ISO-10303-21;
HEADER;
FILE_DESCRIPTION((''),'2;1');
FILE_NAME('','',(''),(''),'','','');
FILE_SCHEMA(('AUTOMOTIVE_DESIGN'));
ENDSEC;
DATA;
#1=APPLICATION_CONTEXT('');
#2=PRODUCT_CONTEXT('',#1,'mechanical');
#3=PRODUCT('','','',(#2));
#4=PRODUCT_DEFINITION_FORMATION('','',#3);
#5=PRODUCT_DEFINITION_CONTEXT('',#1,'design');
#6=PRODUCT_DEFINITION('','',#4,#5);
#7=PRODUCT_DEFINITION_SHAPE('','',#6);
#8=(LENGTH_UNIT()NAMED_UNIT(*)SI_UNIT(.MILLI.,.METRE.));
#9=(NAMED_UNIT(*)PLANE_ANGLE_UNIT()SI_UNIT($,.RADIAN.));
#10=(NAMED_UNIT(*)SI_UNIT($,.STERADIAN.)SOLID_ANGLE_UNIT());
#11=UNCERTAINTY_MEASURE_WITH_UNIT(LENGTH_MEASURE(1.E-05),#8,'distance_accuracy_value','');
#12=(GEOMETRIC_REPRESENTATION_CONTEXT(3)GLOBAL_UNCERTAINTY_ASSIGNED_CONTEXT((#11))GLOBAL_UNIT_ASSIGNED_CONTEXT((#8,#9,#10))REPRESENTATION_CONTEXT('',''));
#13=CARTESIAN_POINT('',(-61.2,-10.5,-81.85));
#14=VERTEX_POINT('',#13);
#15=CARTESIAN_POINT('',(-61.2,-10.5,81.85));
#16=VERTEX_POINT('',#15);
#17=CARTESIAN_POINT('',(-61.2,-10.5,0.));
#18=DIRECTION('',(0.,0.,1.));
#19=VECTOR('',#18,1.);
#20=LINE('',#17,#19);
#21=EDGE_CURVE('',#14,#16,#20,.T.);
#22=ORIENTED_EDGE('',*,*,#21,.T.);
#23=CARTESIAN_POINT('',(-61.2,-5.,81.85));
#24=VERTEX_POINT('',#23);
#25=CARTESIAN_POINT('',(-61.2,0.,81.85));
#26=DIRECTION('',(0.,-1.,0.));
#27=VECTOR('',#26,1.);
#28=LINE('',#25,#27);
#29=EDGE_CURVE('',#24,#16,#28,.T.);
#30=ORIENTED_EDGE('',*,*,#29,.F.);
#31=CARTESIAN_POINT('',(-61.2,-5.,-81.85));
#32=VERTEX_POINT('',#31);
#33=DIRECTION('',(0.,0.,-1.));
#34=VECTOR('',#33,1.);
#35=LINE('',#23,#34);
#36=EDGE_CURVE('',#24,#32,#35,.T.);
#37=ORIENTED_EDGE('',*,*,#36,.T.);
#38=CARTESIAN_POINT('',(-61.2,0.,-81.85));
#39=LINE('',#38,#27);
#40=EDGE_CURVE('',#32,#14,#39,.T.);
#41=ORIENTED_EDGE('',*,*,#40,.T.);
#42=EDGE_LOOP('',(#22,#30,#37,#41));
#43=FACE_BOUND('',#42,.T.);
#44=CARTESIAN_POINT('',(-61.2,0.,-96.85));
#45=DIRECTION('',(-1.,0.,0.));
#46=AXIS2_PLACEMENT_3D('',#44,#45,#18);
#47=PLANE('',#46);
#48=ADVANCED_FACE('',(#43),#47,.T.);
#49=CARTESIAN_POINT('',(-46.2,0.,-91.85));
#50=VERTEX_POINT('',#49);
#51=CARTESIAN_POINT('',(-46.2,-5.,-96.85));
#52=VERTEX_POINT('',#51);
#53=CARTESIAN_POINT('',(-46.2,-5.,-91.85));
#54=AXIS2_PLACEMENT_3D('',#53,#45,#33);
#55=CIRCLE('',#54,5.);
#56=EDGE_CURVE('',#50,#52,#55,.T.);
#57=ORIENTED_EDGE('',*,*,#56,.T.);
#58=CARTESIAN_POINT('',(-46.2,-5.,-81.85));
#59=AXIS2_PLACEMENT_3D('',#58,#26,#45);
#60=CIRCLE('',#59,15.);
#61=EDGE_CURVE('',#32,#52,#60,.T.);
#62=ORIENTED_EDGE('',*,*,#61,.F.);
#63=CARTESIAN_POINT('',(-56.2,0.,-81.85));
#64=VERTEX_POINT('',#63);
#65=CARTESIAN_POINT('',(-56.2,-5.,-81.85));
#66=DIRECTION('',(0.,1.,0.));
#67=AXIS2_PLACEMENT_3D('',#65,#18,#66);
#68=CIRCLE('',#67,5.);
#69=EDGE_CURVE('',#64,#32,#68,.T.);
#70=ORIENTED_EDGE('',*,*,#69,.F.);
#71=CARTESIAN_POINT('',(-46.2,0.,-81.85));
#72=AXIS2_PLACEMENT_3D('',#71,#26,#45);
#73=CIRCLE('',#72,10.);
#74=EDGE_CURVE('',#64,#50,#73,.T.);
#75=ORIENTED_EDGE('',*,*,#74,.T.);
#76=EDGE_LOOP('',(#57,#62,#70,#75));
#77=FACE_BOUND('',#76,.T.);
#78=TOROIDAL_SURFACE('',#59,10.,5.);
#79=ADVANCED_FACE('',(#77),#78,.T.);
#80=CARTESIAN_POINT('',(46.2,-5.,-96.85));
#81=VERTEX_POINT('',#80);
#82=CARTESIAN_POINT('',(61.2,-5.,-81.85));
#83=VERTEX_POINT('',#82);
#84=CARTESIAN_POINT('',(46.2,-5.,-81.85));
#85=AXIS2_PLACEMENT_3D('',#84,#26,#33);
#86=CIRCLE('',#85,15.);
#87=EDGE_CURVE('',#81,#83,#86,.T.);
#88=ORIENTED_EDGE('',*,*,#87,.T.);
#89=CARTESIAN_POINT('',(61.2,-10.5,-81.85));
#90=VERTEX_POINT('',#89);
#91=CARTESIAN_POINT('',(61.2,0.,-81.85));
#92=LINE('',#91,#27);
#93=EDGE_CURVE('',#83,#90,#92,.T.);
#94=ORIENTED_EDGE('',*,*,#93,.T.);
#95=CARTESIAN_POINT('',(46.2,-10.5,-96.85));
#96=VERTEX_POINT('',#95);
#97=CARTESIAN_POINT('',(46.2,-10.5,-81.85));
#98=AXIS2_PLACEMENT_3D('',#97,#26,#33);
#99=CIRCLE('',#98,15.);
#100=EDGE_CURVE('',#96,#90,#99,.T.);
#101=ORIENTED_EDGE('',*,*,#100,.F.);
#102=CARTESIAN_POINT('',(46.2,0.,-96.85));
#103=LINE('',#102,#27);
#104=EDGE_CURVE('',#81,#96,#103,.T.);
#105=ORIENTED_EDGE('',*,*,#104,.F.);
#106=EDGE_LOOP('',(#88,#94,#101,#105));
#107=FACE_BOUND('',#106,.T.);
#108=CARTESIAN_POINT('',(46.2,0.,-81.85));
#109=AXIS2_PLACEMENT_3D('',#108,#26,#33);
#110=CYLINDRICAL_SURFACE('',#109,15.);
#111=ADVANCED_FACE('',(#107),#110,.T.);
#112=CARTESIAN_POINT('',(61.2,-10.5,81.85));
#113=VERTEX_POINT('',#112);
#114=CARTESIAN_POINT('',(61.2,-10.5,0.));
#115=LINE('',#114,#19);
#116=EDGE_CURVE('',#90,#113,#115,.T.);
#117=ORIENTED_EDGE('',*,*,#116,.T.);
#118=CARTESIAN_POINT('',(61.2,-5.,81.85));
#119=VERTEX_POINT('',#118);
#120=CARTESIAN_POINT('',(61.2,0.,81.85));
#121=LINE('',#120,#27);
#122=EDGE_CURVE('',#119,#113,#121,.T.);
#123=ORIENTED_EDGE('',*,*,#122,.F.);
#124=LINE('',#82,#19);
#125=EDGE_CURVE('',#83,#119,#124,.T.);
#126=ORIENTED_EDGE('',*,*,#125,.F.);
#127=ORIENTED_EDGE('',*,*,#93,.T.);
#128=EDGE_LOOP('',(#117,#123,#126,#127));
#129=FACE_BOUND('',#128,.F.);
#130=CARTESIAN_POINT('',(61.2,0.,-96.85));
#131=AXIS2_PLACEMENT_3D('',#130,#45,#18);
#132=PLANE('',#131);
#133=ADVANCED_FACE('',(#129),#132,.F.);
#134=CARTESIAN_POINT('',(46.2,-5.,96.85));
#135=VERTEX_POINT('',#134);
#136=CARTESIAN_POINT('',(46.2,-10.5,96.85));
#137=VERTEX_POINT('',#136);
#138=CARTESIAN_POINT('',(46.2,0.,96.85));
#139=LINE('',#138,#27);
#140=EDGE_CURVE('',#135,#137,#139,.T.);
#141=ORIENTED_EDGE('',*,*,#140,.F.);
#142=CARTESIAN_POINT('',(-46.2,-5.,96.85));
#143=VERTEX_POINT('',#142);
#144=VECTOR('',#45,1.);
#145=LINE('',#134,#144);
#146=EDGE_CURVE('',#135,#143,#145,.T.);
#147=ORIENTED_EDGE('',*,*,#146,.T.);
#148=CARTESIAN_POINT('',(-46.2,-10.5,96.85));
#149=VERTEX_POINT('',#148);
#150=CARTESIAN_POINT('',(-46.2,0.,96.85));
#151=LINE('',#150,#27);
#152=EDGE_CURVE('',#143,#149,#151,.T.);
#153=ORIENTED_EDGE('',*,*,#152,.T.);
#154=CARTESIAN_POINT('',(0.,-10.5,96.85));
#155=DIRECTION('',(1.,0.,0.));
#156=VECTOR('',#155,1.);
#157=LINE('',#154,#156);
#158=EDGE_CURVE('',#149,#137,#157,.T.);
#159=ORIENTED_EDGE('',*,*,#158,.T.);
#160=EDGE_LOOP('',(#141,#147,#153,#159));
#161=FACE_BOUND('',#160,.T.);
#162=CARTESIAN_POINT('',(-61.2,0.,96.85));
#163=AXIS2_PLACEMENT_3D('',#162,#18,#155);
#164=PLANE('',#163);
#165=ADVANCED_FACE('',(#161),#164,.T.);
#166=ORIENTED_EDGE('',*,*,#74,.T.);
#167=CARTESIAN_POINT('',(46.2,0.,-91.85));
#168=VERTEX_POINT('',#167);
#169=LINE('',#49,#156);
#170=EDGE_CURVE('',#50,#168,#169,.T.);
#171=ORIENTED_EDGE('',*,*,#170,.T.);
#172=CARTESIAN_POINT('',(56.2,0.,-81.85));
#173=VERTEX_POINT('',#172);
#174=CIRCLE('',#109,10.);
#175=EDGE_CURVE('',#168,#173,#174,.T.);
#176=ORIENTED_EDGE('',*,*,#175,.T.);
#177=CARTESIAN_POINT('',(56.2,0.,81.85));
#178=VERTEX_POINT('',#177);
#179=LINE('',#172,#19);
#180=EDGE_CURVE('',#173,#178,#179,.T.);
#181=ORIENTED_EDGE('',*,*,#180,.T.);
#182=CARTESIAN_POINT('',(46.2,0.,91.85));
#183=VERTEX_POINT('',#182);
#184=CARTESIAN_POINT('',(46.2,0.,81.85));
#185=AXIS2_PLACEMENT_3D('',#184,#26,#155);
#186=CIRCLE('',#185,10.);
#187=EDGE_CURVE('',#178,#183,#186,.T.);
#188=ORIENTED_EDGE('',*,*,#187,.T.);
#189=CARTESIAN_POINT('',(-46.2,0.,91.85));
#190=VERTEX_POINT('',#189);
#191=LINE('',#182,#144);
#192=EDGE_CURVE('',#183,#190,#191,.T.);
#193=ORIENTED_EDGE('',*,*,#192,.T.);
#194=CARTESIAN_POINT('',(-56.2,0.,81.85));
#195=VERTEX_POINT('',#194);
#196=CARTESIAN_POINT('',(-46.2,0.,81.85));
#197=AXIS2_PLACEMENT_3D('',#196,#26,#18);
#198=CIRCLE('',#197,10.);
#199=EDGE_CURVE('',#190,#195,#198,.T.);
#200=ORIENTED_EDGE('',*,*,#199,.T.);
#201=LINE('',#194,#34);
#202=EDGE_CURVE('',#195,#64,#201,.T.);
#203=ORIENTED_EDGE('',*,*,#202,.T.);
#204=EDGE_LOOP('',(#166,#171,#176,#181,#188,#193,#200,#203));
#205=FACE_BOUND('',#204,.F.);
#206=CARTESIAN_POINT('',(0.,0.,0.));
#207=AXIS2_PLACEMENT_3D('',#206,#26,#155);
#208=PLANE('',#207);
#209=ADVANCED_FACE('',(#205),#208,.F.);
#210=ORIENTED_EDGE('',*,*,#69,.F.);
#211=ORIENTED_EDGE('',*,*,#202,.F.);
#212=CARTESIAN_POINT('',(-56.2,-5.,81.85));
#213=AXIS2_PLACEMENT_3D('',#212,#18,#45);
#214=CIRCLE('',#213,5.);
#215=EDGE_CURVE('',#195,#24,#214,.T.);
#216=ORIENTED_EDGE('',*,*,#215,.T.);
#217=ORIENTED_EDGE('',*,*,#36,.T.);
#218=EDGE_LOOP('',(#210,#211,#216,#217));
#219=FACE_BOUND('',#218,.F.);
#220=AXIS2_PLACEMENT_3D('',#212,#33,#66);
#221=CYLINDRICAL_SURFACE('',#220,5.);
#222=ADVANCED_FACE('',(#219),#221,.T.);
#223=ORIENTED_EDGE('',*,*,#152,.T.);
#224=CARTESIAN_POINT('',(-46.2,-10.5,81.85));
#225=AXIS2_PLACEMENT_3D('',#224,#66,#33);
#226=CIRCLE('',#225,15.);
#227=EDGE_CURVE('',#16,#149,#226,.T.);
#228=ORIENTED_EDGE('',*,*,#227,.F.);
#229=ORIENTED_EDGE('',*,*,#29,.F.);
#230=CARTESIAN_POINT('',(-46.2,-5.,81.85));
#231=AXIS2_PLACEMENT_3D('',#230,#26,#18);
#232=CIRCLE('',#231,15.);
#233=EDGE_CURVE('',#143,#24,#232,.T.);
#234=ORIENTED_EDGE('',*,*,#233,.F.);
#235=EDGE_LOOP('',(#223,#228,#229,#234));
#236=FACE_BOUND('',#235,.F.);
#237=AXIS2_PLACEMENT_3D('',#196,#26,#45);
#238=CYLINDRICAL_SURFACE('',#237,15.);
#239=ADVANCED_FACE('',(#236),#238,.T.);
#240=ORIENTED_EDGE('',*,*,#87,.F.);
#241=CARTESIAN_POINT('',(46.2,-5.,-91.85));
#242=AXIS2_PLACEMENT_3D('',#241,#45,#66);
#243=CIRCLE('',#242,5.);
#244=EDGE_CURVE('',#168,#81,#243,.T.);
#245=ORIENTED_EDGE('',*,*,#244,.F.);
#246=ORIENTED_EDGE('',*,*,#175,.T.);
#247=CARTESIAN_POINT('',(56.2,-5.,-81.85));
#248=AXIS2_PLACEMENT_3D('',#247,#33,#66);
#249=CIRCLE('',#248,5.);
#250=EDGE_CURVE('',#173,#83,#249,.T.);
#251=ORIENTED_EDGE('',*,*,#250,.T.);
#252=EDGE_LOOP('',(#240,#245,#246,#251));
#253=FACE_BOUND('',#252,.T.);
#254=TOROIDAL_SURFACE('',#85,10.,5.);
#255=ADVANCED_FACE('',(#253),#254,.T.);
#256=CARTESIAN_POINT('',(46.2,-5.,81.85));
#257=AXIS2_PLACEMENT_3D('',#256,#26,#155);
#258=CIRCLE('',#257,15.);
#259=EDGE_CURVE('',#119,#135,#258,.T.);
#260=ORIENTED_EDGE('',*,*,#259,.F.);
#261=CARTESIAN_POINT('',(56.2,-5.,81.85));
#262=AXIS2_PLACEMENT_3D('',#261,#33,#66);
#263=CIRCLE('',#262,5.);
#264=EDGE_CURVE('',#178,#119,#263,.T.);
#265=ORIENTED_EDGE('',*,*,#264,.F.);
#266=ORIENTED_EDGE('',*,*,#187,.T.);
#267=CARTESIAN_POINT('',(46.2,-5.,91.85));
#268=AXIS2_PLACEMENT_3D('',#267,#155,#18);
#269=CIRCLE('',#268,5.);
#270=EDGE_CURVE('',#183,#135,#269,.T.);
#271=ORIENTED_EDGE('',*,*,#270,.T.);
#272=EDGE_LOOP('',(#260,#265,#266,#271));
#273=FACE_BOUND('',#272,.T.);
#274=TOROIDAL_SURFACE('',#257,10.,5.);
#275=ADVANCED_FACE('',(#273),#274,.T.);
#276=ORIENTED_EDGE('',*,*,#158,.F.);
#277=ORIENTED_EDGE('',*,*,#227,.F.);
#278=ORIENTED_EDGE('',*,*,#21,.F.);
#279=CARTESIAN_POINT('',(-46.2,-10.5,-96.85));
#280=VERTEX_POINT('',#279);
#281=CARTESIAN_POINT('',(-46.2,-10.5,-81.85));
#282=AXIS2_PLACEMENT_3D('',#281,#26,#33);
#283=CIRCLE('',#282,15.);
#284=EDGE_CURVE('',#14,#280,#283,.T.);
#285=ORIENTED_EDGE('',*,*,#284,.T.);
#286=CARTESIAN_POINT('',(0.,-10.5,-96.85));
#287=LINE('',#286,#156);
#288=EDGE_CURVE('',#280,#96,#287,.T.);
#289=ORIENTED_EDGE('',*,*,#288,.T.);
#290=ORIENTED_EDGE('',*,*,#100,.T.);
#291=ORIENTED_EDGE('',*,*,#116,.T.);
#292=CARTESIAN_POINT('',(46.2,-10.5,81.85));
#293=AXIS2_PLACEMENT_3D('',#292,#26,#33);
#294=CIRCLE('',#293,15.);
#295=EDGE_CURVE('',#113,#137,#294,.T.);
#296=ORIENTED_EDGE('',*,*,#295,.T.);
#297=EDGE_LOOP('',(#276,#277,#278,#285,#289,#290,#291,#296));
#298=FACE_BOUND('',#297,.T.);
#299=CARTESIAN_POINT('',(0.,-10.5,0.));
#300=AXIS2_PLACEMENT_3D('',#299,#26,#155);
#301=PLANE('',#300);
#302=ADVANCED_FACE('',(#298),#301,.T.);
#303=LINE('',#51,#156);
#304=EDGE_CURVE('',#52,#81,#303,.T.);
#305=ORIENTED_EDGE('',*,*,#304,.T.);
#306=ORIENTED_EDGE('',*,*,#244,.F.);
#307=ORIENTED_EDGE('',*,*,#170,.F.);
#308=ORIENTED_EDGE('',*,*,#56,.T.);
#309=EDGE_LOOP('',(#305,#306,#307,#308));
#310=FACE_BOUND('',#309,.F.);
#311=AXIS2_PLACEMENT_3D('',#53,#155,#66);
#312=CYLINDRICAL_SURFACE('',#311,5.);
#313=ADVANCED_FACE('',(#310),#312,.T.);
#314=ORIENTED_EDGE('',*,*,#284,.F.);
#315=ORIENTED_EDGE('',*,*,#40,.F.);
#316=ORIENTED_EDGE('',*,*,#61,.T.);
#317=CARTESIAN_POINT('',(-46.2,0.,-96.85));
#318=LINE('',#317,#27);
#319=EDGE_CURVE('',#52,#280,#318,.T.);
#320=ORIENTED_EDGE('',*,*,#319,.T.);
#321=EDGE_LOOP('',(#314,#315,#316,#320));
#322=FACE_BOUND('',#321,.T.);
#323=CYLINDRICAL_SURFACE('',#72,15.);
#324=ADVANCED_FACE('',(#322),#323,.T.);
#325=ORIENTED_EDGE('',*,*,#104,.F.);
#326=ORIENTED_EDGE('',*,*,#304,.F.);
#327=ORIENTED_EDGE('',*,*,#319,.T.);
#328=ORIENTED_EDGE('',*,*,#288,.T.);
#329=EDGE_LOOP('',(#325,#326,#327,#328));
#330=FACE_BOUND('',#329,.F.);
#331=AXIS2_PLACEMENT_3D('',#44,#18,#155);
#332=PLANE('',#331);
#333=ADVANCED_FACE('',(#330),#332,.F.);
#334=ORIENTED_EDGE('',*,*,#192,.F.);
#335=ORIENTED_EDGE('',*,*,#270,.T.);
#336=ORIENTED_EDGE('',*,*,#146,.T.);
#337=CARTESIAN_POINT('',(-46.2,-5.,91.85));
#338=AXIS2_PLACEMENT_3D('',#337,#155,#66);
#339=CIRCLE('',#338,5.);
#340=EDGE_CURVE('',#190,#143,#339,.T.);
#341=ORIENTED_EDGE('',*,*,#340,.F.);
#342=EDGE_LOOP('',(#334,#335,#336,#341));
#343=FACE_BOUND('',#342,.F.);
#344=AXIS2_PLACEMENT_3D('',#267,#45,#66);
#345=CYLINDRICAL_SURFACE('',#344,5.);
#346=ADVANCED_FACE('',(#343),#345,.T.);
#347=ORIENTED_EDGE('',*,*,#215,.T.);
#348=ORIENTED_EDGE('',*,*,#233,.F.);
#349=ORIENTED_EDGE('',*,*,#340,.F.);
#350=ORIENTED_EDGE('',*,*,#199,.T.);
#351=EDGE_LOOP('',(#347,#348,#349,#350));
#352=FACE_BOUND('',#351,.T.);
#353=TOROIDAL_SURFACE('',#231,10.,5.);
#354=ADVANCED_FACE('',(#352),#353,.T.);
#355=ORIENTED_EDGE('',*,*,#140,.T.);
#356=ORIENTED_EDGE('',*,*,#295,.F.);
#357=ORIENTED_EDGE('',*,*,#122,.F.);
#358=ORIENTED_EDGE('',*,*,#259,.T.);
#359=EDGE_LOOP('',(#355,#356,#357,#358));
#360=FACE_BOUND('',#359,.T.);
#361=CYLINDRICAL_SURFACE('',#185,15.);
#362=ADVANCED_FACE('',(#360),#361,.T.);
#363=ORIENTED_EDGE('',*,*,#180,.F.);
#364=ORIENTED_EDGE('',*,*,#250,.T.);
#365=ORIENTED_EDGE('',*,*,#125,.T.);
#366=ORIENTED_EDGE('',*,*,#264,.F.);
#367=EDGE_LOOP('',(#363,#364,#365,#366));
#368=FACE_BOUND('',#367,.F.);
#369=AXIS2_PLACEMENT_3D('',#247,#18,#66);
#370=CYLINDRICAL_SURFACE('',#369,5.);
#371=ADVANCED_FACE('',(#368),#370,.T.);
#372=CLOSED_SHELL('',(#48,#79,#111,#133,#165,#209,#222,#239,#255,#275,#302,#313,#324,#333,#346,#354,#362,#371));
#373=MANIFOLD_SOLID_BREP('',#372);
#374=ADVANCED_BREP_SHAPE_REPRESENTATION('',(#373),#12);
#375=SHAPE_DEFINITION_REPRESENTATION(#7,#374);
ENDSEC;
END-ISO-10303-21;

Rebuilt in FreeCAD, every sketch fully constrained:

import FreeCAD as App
import Part
import Sketcher
Q = App.Units.Quantity


def edges_at(feature, points):
    """Names of the edges that pass closest to the given points."""
    edges = feature.Shape.Edges
    near = lambda p: min(range(len(edges)), key=lambda i: edges[i].distToShape(Part.Vertex(*p))[0])
    return sorted({f"Edge{near(p) + 1}" for p in points})

doc = App.newDocument("Part")
params = doc.addObject("Spreadsheet::Sheet", "Params")
for row, (alias, value) in enumerate([
    ("sketch1_width", "122.4 mm"),
    ("sketch1_height", "193.7 mm"),
    ("pad1_length", "10.5 mm"),
    ("fillet_radius", "15 mm"),
    ("fillet2_radius", "5 mm"),
], start=1):
    params.set(f"A{row}", alias)
    params.set(f"B{row}", "=" + value)
    params.setAlias(f"B{row}", alias)

body = doc.addObject("PartDesign::Body", "Body")

# Sketch on XZ plane
sketch1 = doc.addObject("Sketcher::SketchObject", "Sketch")
body.addObject(sketch1)
sketch1.AttachmentSupport = (doc.XZ_Plane, [""])
sketch1.MapMode = "FlatFace"
sketch1.addGeometry([
    Part.LineSegment(App.Vector(-61, 97, 0), App.Vector(-61, -97, 0)),
    Part.LineSegment(App.Vector(-61, -97, 0), App.Vector(61, -97, 0)),
    Part.LineSegment(App.Vector(61, -97, 0), App.Vector(61, 97, 0)),
    Part.LineSegment(App.Vector(61, 97, 0), App.Vector(-61, 97, 0)),
], False)
sketch1.addConstraint([
    Sketcher.Constraint("Coincident", 0, 2, 1, 1),
    Sketcher.Constraint("Coincident", 1, 2, 2, 1),
    Sketcher.Constraint("Coincident", 2, 2, 3, 1),
    Sketcher.Constraint("Coincident", 3, 2, 0, 1),
    Sketcher.Constraint("Vertical", 0),
    Sketcher.Constraint("Horizontal", 1),
    Sketcher.Constraint("Vertical", 2),
    Sketcher.Constraint("Horizontal", 3),
    Sketcher.Constraint("Symmetric", 0, 2, 2, 2, -1, 1),
    Sketcher.Constraint("DistanceX", 1, 1, 1, 2, Q("122.4 mm")),
    Sketcher.Constraint("DistanceY", 0, 2, 0, 1, Q("193.7 mm")),
])
sketch1.setExpression("Constraints[9]", "Params.sketch1_width")
sketch1.setExpression("Constraints[10]", "Params.sketch1_height")
pad1 = doc.addObject("PartDesign::Pad", "Pad")
body.addObject(pad1)
pad1.Profile = sketch1
pad1.setExpression("Length", "Params.pad1_length")
doc.recompute()

fillet = doc.addObject("PartDesign::Fillet", "Fillet")
body.addObject(fillet)
fillet.Base = (pad1, edges_at(pad1, [
    (61.2, -5.25, 96.85),
    (61.2, -5.25, -96.85),
    (-61.2, -5.25, 96.85),
    (-61.2, -5.25, -96.85),
]))
fillet.setExpression("Radius", "Params.fillet_radius")
doc.recompute()

fillet2 = doc.addObject("PartDesign::Fillet", "Fillet001")
body.addObject(fillet2)
fillet2.Base = (fillet, edges_at(fillet, [(61.2, 0, 0)]))
fillet2.setExpression("Radius", "Params.fillet2_radius")

doc.recompute()
